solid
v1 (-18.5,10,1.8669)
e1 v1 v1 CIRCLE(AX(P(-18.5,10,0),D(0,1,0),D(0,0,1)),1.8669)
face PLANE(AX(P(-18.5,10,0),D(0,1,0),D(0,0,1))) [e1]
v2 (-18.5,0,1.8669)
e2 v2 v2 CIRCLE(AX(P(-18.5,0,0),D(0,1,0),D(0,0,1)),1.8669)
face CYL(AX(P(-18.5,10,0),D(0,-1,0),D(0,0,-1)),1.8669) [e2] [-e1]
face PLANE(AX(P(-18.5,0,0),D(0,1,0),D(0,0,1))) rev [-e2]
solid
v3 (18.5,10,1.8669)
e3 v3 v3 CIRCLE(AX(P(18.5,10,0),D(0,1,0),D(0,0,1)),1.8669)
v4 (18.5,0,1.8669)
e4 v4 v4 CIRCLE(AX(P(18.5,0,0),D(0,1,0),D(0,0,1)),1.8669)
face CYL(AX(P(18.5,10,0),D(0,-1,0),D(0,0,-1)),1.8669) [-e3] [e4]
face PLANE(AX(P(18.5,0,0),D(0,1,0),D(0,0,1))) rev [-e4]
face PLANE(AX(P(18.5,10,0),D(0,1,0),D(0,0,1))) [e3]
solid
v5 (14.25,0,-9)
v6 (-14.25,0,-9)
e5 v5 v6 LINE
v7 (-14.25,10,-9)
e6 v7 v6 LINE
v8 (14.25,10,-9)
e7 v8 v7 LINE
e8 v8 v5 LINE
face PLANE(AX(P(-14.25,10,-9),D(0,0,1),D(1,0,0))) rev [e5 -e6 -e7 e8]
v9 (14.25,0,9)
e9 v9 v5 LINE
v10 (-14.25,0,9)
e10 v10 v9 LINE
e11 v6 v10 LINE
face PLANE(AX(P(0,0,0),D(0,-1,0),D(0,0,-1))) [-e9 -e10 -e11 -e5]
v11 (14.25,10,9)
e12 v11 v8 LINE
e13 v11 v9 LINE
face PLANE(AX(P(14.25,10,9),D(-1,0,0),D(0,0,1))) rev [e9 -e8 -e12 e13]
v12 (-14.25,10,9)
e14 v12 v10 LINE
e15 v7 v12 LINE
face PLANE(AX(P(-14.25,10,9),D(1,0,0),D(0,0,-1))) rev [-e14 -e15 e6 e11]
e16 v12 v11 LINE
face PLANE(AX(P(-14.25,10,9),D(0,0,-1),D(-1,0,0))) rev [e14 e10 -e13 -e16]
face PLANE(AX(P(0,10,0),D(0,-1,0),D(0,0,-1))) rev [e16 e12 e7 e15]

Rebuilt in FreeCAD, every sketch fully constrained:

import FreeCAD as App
import Part
import Sketcher

V = App.Vector
Q = App.Units.Quantity

doc = App.newDocument("Part")
body = doc.addObject("PartDesign::Body", "Body")

# Sketch on XZ plane
sketch1 = body.newObject("Sketcher::SketchObject", "Sketch")
sketch1.AttachmentSupport = (doc.getObject("XZ_Plane"), [""])
sketch1.MapMode = "FlatFace"
sketch1.addGeometry(Part.Circle(V(18.5, 0, 0), V(0, 0, 1), 1.9), False)
sketch1.addConstraint([
    Sketcher.Constraint("PointOnObject", 0, 3, -1),
    Sketcher.Constraint("Diameter", 0, Q("3.7338 mm")),
    Sketcher.Constraint("DistanceX", -1, 1, 0, 3, Q("18.5 mm")),
])
pad1 = body.newObject("PartDesign::Pad", "Pad")
pad1.Profile = sketch1
pad1.Length = 10
pad1.Reversed = True
body2 = doc.addObject("PartDesign::Body", "Body001")

# Sketch on XZ plane
sketch2 = body2.newObject("Sketcher::SketchObject", "Sketch001")
sketch2.AttachmentSupport = (doc.getObject("XZ_Plane001"), [""])
sketch2.MapMode = "FlatFace"
sketch2.addGeometry(Part.Circle(V(-18.5, 0, 0), V(0, 0, 1), 1.9), False)
sketch2.addConstraint([
    Sketcher.Constraint("PointOnObject", 0, 3, -1),
    Sketcher.Constraint("Diameter", 0, Q("3.7338 mm")),
    Sketcher.Constraint("DistanceX", 0, 3, -1, 1, Q("18.5 mm")),
])
pad2 = body2.newObject("PartDesign::Pad", "Pad001")
pad2.Profile = sketch2
pad2.Length = 10
pad2.Reversed = True
body3 = doc.addObject("PartDesign::Body", "Body002")

# Sketch on XZ plane
sketch3 = body3.newObject("Sketcher::SketchObject", "Sketch002")
sketch3.AttachmentSupport = (doc.getObject("XZ_Plane002"), [""])
sketch3.MapMode = "FlatFace"
sketch3.addGeometry([
    Part.LineSegment(V(-14, -9, 0), V(-14, 9, 0)),
    Part.LineSegment(V(-14, 9, 0), V(14, 9, 0)),
    Part.LineSegment(V(14, 9, 0), V(14, -9, 0)),
    Part.LineSegment(V(14, -9, 0), V(-14, -9, 0)),
], False)
sketch3.addConstraint([
    Sketcher.Constraint("Coincident", 0, 2, 1, 1),
    Sketcher.Constraint("Coincident", 1, 2, 2, 1),
    Sketcher.Constraint("Coincident", 2, 2, 3, 1),
    Sketcher.Constraint("Coincident", 3, 2, 0, 1),
    Sketcher.Constraint("Vertical", 0),
    Sketcher.Constraint("Horizontal", 1),
    Sketcher.Constraint("Vertical", 2),
    Sketcher.Constraint("Horizontal", 3),
    Sketcher.Constraint("Symmetric", 0, 2, 2, 2, -1, 1),
    Sketcher.Constraint("DistanceY", 0, 1, 0, 2, Q("18 mm")),
    Sketcher.Constraint("DistanceX", 1, 1, 1, 2, Q("28.5 mm")),
])
pad3 = body3.newObject("PartDesign::Pad", "Pad002")
pad3.Profile = sketch3
pad3.Length = 10
pad3.Reversed = True

doc.recompute()
